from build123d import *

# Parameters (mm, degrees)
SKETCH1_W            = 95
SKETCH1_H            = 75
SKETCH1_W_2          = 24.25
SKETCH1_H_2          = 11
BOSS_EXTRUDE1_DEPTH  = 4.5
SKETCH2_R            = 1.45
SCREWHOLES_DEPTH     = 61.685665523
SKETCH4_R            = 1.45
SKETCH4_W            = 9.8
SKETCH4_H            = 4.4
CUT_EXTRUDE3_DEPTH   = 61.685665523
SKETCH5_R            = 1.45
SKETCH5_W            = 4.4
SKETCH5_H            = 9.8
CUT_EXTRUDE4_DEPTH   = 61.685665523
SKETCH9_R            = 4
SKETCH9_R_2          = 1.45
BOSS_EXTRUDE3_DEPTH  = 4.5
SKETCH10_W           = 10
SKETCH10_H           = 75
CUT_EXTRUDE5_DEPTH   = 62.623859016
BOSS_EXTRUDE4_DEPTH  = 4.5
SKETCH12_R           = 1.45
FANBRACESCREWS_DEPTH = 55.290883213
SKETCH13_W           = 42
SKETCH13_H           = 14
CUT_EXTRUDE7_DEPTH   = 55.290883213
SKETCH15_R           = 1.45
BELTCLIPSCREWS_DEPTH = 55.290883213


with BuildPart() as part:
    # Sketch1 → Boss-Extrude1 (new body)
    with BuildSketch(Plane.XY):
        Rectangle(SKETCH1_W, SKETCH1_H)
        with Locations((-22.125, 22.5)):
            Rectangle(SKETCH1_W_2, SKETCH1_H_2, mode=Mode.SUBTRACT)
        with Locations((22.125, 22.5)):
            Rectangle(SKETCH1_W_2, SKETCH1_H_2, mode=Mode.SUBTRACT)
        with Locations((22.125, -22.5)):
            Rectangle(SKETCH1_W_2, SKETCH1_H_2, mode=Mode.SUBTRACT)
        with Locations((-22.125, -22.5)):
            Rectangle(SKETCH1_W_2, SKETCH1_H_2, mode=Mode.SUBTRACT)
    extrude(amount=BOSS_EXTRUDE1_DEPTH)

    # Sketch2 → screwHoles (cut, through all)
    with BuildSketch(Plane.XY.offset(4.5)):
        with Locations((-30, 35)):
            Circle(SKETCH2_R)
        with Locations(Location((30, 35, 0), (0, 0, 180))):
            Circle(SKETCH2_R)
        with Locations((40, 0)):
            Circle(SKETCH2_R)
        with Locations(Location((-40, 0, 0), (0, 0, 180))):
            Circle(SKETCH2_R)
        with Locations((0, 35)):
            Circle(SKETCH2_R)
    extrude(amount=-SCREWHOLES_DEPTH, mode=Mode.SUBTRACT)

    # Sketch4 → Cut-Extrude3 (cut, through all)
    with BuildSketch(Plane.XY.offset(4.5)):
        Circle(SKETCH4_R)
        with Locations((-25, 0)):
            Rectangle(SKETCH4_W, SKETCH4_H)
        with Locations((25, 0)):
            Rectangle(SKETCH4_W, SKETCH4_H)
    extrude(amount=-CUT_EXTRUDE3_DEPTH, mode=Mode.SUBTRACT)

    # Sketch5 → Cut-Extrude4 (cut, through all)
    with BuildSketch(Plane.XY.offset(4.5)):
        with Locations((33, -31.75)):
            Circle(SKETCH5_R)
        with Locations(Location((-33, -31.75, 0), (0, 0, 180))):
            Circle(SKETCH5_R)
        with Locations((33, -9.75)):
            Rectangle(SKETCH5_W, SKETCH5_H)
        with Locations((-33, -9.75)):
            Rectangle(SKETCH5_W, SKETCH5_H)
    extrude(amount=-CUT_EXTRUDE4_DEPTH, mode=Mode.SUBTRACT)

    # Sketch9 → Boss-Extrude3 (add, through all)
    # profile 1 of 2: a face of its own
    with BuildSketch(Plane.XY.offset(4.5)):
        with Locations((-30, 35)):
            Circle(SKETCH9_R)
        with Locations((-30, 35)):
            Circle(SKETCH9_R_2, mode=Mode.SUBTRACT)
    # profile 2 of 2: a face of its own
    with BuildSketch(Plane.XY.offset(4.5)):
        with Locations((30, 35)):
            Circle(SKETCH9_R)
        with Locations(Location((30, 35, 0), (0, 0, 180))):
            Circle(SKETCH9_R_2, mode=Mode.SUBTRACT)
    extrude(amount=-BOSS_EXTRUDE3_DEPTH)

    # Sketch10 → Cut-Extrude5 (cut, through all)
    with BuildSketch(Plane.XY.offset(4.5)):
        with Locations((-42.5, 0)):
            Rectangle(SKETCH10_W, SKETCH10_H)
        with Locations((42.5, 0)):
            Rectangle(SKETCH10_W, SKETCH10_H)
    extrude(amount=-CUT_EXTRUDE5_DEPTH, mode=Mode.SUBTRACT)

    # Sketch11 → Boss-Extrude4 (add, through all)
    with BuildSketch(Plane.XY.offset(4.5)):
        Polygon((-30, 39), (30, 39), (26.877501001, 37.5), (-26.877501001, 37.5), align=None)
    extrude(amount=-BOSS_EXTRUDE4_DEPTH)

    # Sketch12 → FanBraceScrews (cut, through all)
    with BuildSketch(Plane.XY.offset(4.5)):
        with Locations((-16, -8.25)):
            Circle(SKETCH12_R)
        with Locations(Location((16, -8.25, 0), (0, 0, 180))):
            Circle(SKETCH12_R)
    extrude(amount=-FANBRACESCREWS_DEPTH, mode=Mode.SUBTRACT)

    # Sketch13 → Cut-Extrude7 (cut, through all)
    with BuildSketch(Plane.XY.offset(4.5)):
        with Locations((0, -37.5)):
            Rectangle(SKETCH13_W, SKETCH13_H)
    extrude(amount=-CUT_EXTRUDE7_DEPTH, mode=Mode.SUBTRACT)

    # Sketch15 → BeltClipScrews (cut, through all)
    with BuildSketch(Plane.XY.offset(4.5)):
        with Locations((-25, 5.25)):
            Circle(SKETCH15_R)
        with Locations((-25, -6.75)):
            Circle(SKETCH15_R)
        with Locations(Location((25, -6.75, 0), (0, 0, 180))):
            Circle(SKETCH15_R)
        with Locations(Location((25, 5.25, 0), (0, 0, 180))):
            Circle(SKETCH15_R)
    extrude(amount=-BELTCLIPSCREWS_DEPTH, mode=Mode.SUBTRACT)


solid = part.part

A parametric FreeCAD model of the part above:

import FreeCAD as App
import Part
import Sketcher

V = App.Vector
Q = App.Units.Quantity

doc = App.newDocument("Part")
body = doc.addObject("PartDesign::Body", "Body")

sketch1 = body.newObject("Sketcher::SketchObject", "Sketch")
sketch1.AttachmentSupport = (doc.getObject("XY_Plane"), [""])
sketch1.MapMode = "FlatFace"
sketch1.addGeometry([
    Part.LineSegment(V(-48, 38, 0), V(-48, -38, 0)),
    Part.LineSegment(V(-48, -38, 0), V(48, -38, 0)),
    Part.LineSegment(V(48, -38, 0), V(48, 38, 0)),
    Part.LineSegment(V(48, 38, 0), V(-48, 38, 0)),
    Part.LineSegment(V(-10, -28, 0), V(-34, -28, 0)),
    Part.LineSegment(V(-34, -28, 0), V(-34, -17, 0)),
    Part.LineSegment(V(-34, -17, 0), V(-10, -17, 0)),
    Part.LineSegment(V(-10, -17, 0), V(-10, -28, 0)),
    Part.LineSegment(V(34, -28, 0), V(10, -28, 0)),
    Part.LineSegment(V(10, -28, 0), V(10, -17, 0)),
    Part.LineSegment(V(10, -17, 0), V(34, -17, 0)),
    Part.LineSegment(V(34, -17, 0), V(34, -28, 0)),
    Part.LineSegment(V(-10, 17, 0), V(-34, 17, 0)),
    Part.LineSegment(V(-34, 17, 0), V(-34, 28, 0)),
    Part.LineSegment(V(-34, 28, 0), V(-10, 28, 0)),
    Part.LineSegment(V(-10, 28, 0), V(-10, 17, 0)),
    Part.LineSegment(V(34, 17, 0), V(10, 17, 0)),
    Part.LineSegment(V(10, 17, 0), V(10, 28, 0)),
    Part.LineSegment(V(10, 28, 0), V(34, 28, 0)),
    Part.LineSegment(V(34, 28, 0), V(34, 17, 0)),
], False)
sketch1.addConstraint([
    Sketcher.Constraint("Coincident", 0, 2, 1, 1),
    Sketcher.Constraint("Coincident", 1, 2, 2, 1),
    Sketcher.Constraint("Coincident", 2, 2, 3, 1),
    Sketcher.Constraint("Coincident", 3, 2, 0, 1),
    Sketcher.Constraint("Coincident", 4, 2, 5, 1),
    Sketcher.Constraint("Coincident", 5, 2, 6, 1),
    Sketcher.Constraint("Coincident", 6, 2, 7, 1),
    Sketcher.Constraint("Coincident", 7, 2, 4, 1),
    Sketcher.Constraint("Coincident", 8, 2, 9, 1),
    Sketcher.Constraint("Coincident", 9, 2, 10, 1),
    Sketcher.Constraint("Coincident", 10, 2, 11, 1),
    Sketcher.Constraint("Coincident", 11, 2, 8, 1),
    Sketcher.Constraint("Coincident", 12, 2, 13, 1),
    Sketcher.Constraint("Coincident", 13, 2, 14, 1),
    Sketcher.Constraint("Coincident", 14, 2, 15, 1),
    Sketcher.Constraint("Coincident", 15, 2, 12, 1),
    Sketcher.Constraint("Coincident", 16, 2, 17, 1),
    Sketcher.Constraint("Coincident", 17, 2, 18, 1),
    Sketcher.Constraint("Coincident", 18, 2, 19, 1),
    Sketcher.Constraint("Coincident", 19, 2, 16, 1),
    Sketcher.Constraint("Vertical", 0),
    Sketcher.Constraint("Horizontal", 1),
    Sketcher.Constraint("Vertical", 2),
    Sketcher.Constraint("Horizontal", 3),
    Sketcher.Constraint("Horizontal", 4),
    Sketcher.Constraint("Vertical", 5),
    Sketcher.Constraint("Horizontal", 6),
    Sketcher.Constraint("Vertical", 7),
    Sketcher.Constraint("Horizontal", 8),
    Sketcher.Constraint("Vertical", 9),
    Sketcher.Constraint("Horizontal", 10),
    Sketcher.Constraint("Vertical", 11),
    Sketcher.Constraint("Horizontal", 12),
    Sketcher.Constraint("Vertical", 13),
    Sketcher.Constraint("Horizontal", 14),
    Sketcher.Constraint("Vertical", 15),
    Sketcher.Constraint("Horizontal", 16),
    Sketcher.Constraint("Vertical", 17),
    Sketcher.Constraint("Horizontal", 18),
    Sketcher.Constraint("Vertical", 19),
    Sketcher.Constraint("Symmetric", 0, 2, 2, 2, -1, 1),
    Sketcher.Constraint("Symmetric", 10, 2, 12, 2, -1, 1),
    Sketcher.Constraint("Symmetric", 8, 2, 14, 2, -1, 1),
    Sketcher.Constraint("Symmetric", 6, 2, 16, 2, -1, 1),
    Sketcher.Constraint("Symmetric", 4, 2, 18, 2, -1, 1),
    Sketcher.Constraint("Symmetric", 7, 2, 8, 2, -2),
    Sketcher.Constraint("Symmetric", 5, 2, 10, 2, -2),
    Sketcher.Constraint("DistanceX", 1, 1, 1, 2, Q("95 mm")),
    Sketcher.Constraint("DistanceY", 0, 2, 0, 1, Q("75 mm")),
    Sketcher.Constraint("DistanceY", 5, 1, 5, 2, Q("11 mm")),
    Sketcher.Constraint("DistanceY", 4, 2, -1, 1, Q("28 mm")),
    Sketcher.Constraint("DistanceX", 6, 2, -1, 1, Q("10 mm")),
    Sketcher.Constraint("DistanceX", 4, 2, 4, 1, Q("24.25 mm")),
])
pad1 = body.newObject("PartDesign::Pad", "Pad")
pad1.Profile = sketch1
pad1.Length = 4.5

sketch2 = body.newObject("Sketcher::SketchObject", "Sketch001")
sketch2.AttachmentSupport = (doc.getObject("XY_Plane"), [""])
sketch2.MapMode = "FlatFace"
sketch2.AttachmentOffset = App.Placement(V(0, 0, 4.5), App.Rotation())
sketch2.addGeometry([
    Part.Circle(V(-30, 35, 0), V(0, 0, 1), 1.4),
    Part.Circle(V(30, 35, 0), V(0, 0, 1), 1.4),
    Part.Circle(V(40, 0, 0), V(0, 0, 1), 1.4),
    Part.Circle(V(-40, 0, 0), V(0, 0, 1), 1.4),
    Part.Circle(V(0, 35, 0), V(0, 0, 1), 1.4),
], False)
sketch2.addConstraint([
    Sketcher.Constraint("Equal", 0, 1),
    Sketcher.Constraint("Equal", 1, 2),
    Sketcher.Constraint("Equal", 2, 3),
    Sketcher.Constraint("Equal", 3, 4),
    Sketcher.Constraint("Symmetric", 2, 3, 3, 3, -1, 1),
    Sketcher.Constraint("Symmetric", 0, 3, 1, 3, -2),
    Sketcher.Constraint("PointOnObject", 2, 3, -1),
    Sketcher.Constraint("PointOnObject", 4, 3, -2),
    Sketcher.Constraint("Horizontal", 1, 3, 4, 3),
    Sketcher.Constraint("Diameter", 0, Q("2.9 mm")),
    Sketcher.Constraint("DistanceX", 0, 3, -1, 1, Q("30 mm")),
    Sketcher.Constraint("DistanceY", -1, 1, 0, 3, Q("35 mm")),
    Sketcher.Constraint("DistanceX", -1, 1, 2, 3, Q("40 mm")),
])
pocket1 = body.newObject("PartDesign::Pocket", "Pocket")
pocket1.Profile = sketch2
pocket1.Type = "ThroughAll"

sketch3 = body.newObject("Sketcher::SketchObject", "Sketch002")
sketch3.AttachmentSupport = (doc.getObject("XY_Plane"), [""])
sketch3.MapMode = "FlatFace"
sketch3.AttachmentOffset = App.Placement(V(0, 0, 4.5), App.Rotation())
sketch3.addGeometry([
    Part.Circle(V(0, 0, 0), V(0, 0, 1), 1.4),
    Part.LineSegment(V(-29.9, 2.2, 0), V(-29.9, -2.2, 0)),
    Part.LineSegment(V(-29.9, -2.2, 0), V(-20.1, -2.2, 0)),
    Part.LineSegment(V(-20.1, -2.2, 0), V(-20.1, 2.2, 0)),
    Part.LineSegment(V(-20.1, 2.2, 0), V(-29.9, 2.2, 0)),
    Part.LineSegment(V(20.1, 2.2, 0), V(20.1, -2.2, 0)),
    Part.LineSegment(V(20.1, -2.2, 0), V(29.9, -2.2, 0)),
    Part.LineSegment(V(29.9, -2.2, 0), V(29.9, 2.2, 0)),
    Part.LineSegment(V(29.9, 2.2, 0), V(20.1, 2.2, 0)),
], False)
sketch3.addConstraint([
    Sketcher.Constraint("Coincident", 1, 2, 2, 1),
    Sketcher.Constraint("Coincident", 2, 2, 3, 1),
    Sketcher.Constraint("Coincident", 3, 2, 4, 1),
    Sketcher.Constraint("Coincident", 4, 2, 1, 1),
    Sketcher.Constraint("Coincident", 5, 2, 6, 1),
    Sketcher.Constraint("Coincident", 6, 2, 7, 1),
    Sketcher.Constraint("Coincident", 7, 2, 8, 1),
    Sketcher.Constraint("Coincident", 8, 2, 5, 1),
    Sketcher.Constraint("Vertical", 1),
    Sketcher.Constraint("Horizontal", 2),
    Sketcher.Constraint("Vertical", 3),
    Sketcher.Constraint("Horizontal", 4),
    Sketcher.Constraint("Vertical", 5),
    Sketcher.Constraint("Horizontal", 6),
    Sketcher.Constraint("Vertical", 7),
    Sketcher.Constraint("Horizontal", 8),
    Sketcher.Constraint("Coincident", 0, 3, -1, 1),
    Sketcher.Constraint("Symmetric", 3, 2, 5, 2, -1, 1),
    Sketcher.Constraint("Symmetric", 1, 2, 7, 2, -1, 1),
    Sketcher.Constraint("Horizontal", 2, 2, 5, 2),
    Sketcher.Constraint("Diameter", 0, Q("2.9 mm")),
    Sketcher.Constraint("DistanceX", 2, 1, 2, 2, Q("9.8 mm")),
    Sketcher.Constraint("DistanceY", 1, 2, 1, 1, Q("4.4 mm")),
    Sketcher.Constraint("DistanceX", 1, 2, 5, 2, Q("50 mm")),
])
pocket2 = body.newObject("PartDesign::Pocket", "Pocket001")
pocket2.Profile = sketch3
pocket2.Type = "ThroughAll"

sketch4 = body.newObject("Sketcher::SketchObject", "Sketch003")
sketch4.AttachmentSupport = (doc.getObject("XY_Plane"), [""])
sketch4.MapMode = "FlatFace"
sketch4.AttachmentOffset = App.Placement(V(0, 0, 4.5), App.Rotation())
sketch4.addGeometry([
    Part.Circle(V(33, -31.8, 0), V(0, 0, 1), 1.4),
    Part.Circle(V(-33, -31.8, 0), V(0, 0, 1), 1.4),
    Part.LineSegment(V(30.8, -4.8, 0), V(30.8, -14.7, 0)),
    Part.LineSegment(V(30.8, -14.7, 0), V(35.2, -14.7, 0)),
    Part.LineSegment(V(35.2, -14.7, 0), V(35.2, -4.8, 0)),
    Part.LineSegment(V(35.2, -4.8, 0), V(30.8, -4.8, 0)),
    Part.LineSegment(V(-35.2, -4.8, 0), V(-35.2, -14.7, 0)),
    Part.LineSegment(V(-35.2, -14.7, 0), V(-30.8, -14.7, 0)),
    Part.LineSegment(V(-30.8, -14.7, 0), V(-30.8, -4.8, 0)),
    Part.LineSegment(V(-30.8, -4.8, 0), V(-35.2, -4.8, 0)),
], False)
sketch4.addConstraint([
    Sketcher.Constraint("Coincident", 2, 2, 3, 1),
    Sketcher.Constraint("Coincident", 3, 2, 4, 1),
    Sketcher.Constraint("Coincident", 4, 2, 5, 1),
    Sketcher.Constraint("Coincident", 5, 2, 2, 1),
    Sketcher.Constraint("Coincident", 6, 2, 7, 1),
    Sketcher.Constraint("Coincident", 7, 2, 8, 1),
    Sketcher.Constraint("Coincident", 8, 2, 9, 1),
    Sketcher.Constraint("Coincident", 9, 2, 6, 1),
    Sketcher.Constraint("Vertical", 2),
    Sketcher.Constraint("Horizontal", 3),
    Sketcher.Constraint("Vertical", 4),
    Sketcher.Constraint("Horizontal", 5),
    Sketcher.Constraint("Vertical", 6),
    Sketcher.Constraint("Horizontal", 7),
    Sketcher.Constraint("Vertical", 8),
    Sketcher.Constraint("Horizontal", 9),
    Sketcher.Constraint("Equal", 0, 1),
    Sketcher.Constraint("Symmetric", 0, 3, 1, 3, -2),
    Sketcher.Constraint("Symmetric", 3, 2, 6, 2, -2),
    Sketcher.Constraint("Symmetric", 5, 2, 8, 2, -2),
    Sketcher.Constraint("Diameter", 0, Q("2.9 mm")),
    Sketcher.Constraint("DistanceX", 3, 1, 3, 2, Q("4.4 mm")),
    Sketcher.Constraint("DistanceY", 2, 2, 2, 1, Q("9.8 mm")),
    Sketcher.Constraint("DistanceX", -1, 1, 0, 3, Q("33 mm")),
    Sketcher.Constraint("DistanceX", 6, 2, 2, 2, Q("66 mm")),
    Sketcher.Constraint("DistanceY", 0, 3, 2, 2, Q("17.1 mm")),
    Sketcher.Constraint("DistanceY", 0, 3, -1, 1, Q("31.75 mm")),
])
pocket3 = body.newObject("PartDesign::Pocket", "Pocket002")
pocket3.Profile = sketch4
pocket3.Type = "ThroughAll"

sketch5 = body.newObject("Sketcher::SketchObject", "Sketch004")
sketch5.AttachmentSupport = (doc.getObject("XY_Plane"), [""])
sketch5.MapMode = "FlatFace"
sketch5.AttachmentOffset = App.Placement(V(0, 0, 4.5), App.Rotation())
sketch5.addGeometry([
    Part.Circle(V(-30, 35, 0), V(0, 0, 1), 4),
    Part.Circle(V(-30, 35, 0), V(0, 0, 1), 1.4),
    Part.Circle(V(30, 35, 0), V(0, 0, 1), 4),
    Part.Circle(V(30, 35, 0), V(0, 0, 1), 1.4),
], False)
sketch5.addConstraint([
    Sketcher.Constraint("Coincident", 1, 3, 0, 3),
    Sketcher.Constraint("Coincident", 3, 3, 2, 3),
    Sketcher.Constraint("Equal", 0, 2),
    Sketcher.Constraint("Equal", 1, 3),
    Sketcher.Constraint("Symmetric", 0, 3, 2, 3, -2),
    Sketcher.Constraint("Diameter", 0, Q("8 mm")),
    Sketcher.Constraint("Diameter", 1, Q("2.9 mm")),
    Sketcher.Constraint("DistanceX", 0, 3, -1, 1, Q("30 mm")),
    Sketcher.Constraint("DistanceY", -1, 1, 0, 3, Q("35 mm")),
])
pad2 = body.newObject("PartDesign::Pad", "Pad001")
pad2.Profile = sketch5
pad2.Length = 4.5
pad2.Reversed = True

sketch6 = body.newObject("Sketcher::SketchObject", "Sketch005")
sketch6.AttachmentSupport = (doc.getObject("XY_Plane"), [""])
sketch6.MapMode = "FlatFace"
sketch6.AttachmentOffset = App.Placement(V(0, 0, 4.5), App.Rotation())
sketch6.addGeometry([
    Part.LineSegment(V(-48, 38, 0), V(-48, -38, 0)),
    Part.LineSegment(V(-48, -38, 0), V(-38, -38, 0)),
    Part.LineSegment(V(-38, -38, 0), V(-38, 38, 0)),
    Part.LineSegment(V(-38, 38, 0), V(-48, 38, 0)),
    Part.LineSegment(V(38, 38, 0), V(38, -38, 0)),
    Part.LineSegment(V(38, -38, 0), V(48, -38, 0)),
    Part.LineSegment(V(48, -38, 0), V(48, 38, 0)),
    Part.LineSegment(V(48, 38, 0), V(38, 38, 0)),
], False)
sketch6.addConstraint([
    Sketcher.Constraint("Coincident", 0, 2, 1, 1),
    Sketcher.Constraint("Coincident", 1, 2, 2, 1),
    Sketcher.Constraint("Coincident", 2, 2, 3, 1),
    Sketcher.Constraint("Coincident", 3, 2, 0, 1),
    Sketcher.Constraint("Coincident", 4, 2, 5, 1),
    Sketcher.Constraint("Coincident", 5, 2, 6, 1),
    Sketcher.Constraint("Coincident", 6, 2, 7, 1),
    Sketcher.Constraint("Coincident", 7, 2, 4, 1),
    Sketcher.Constraint("Vertical", 0),
    Sketcher.Constraint("Horizontal", 1),
    Sketcher.Constraint("Vertical", 2),
    Sketcher.Constraint("Horizontal", 3),
    Sketcher.Constraint("Vertical", 4),
    Sketcher.Constraint("Horizontal", 5),
    Sketcher.Constraint("Vertical", 6),
    Sketcher.Constraint("Horizontal", 7),
    Sketcher.Constraint("Symmetric", 2, 2, 4, 2, -1, 1),
    Sketcher.Constraint("Symmetric", 0, 2, 6, 2, -1, 1),
    Sketcher.Constraint("Horizontal", 1, 2, 4, 2),
    Sketcher.Constraint("DistanceX", 1, 1, 1, 2, Q("10 mm")),
    Sketcher.Constraint("DistanceY", 0, 2, 0, 1, Q("75 mm")),
    Sketcher.Constraint("DistanceX", 1, 2, 4, 2, Q("75 mm")),
])
pocket4 = body.newObject("PartDesign::Pocket", "Pocket003")
pocket4.Profile = sketch6
pocket4.Type = "ThroughAll"

sketch7 = body.newObject("Sketcher::SketchObject", "Sketch006")
sketch7.AttachmentSupport = (doc.getObject("XY_Plane"), [""])
sketch7.MapMode = "FlatFace"
sketch7.AttachmentOffset = App.Placement(V(0, 0, 4.5), App.Rotation())
sketch7.addGeometry([
    Part.LineSegment(V(30, 39, 0), V(-30, 39, 0)),
    Part.LineSegment(V(-30, 39, 0), V(-26.9, 37.5, 0)),
    Part.LineSegment(V(-26.9, 37.5, 0), V(26.9, 37.5, 0)),
    Part.LineSegment(V(26.9, 37.5, 0), V(30, 39, 0)),
], False)
sketch7.addConstraint([
    Sketcher.Constraint("Coincident", 0, 2, 1, 1),
    Sketcher.Constraint("Coincident", 1, 2, 2, 1),
    Sketcher.Constraint("Coincident", 2, 2, 3, 1),
    Sketcher.Constraint("Coincident", 3, 2, 0, 1),
    Sketcher.Constraint("Horizontal", 0),
    Sketcher.Constraint("Horizontal", 2),
    Sketcher.Constraint("Equal", 1, 3),
    Sketcher.Constraint("DistanceX", 0, 2, 0, 1, Q("60 mm")),
    Sketcher.Constraint("DistanceX", 0, 2, -1, 1, Q("30 mm")),
    Sketcher.Constraint("DistanceY", -1, 1, 0, 2, Q("39 mm")),
    Sketcher.Constraint("DistanceY", -1, 1, 1, 2, Q("37.5 mm")),
    Sketcher.Constraint("Distance", 1, Q("3.464102 mm")),
])
pad3 = body.newObject("PartDesign::Pad", "Pad002")
pad3.Profile = sketch7
pad3.Length = 4.5
pad3.Reversed = True

sketch8 = body.newObject("Sketcher::SketchObject", "Sketch007")
sketch8.AttachmentSupport = (doc.getObject("XY_Plane"), [""])
sketch8.MapMode = "FlatFace"
sketch8.AttachmentOffset = App.Placement(V(0, 0, 4.5), App.Rotation())
sketch8.addGeometry([
    Part.Circle(V(-16, -8.2, 0), V(0, 0, 1), 1.4),
    Part.Circle(V(16, -8.2, 0), V(0, 0, 1), 1.4),
], False)
sketch8.addConstraint([
    Sketcher.Constraint("Equal", 0, 1),
    Sketcher.Constraint("Symmetric", 0, 3, 1, 3, -2),
    Sketcher.Constraint("Diameter", 0, Q("2.9 mm")),
    Sketcher.Constraint("DistanceX", 0, 3, -1, 1, Q("16 mm")),
    Sketcher.Constraint("DistanceY", 0, 3, -1, 1, Q("8.25 mm")),
])
pocket5 = body.newObject("PartDesign::Pocket", "Pocket004")
pocket5.Profile = sketch8
pocket5.Type = "ThroughAll"

sketch9 = body.newObject("Sketcher::SketchObject", "Sketch008")
sketch9.AttachmentSupport = (doc.getObject("XY_Plane"), [""])
sketch9.MapMode = "FlatFace"
sketch9.AttachmentOffset = App.Placement(V(0, 0, 4.5), App.Rotation())
sketch9.addGeometry([
    Part.LineSegment(V(-21, -30, 0), V(-21, -44, 0)),
    Part.LineSegment(V(-21, -44, 0), V(21, -44, 0)),
    Part.LineSegment(V(21, -44, 0), V(21, -30, 0)),
    Part.LineSegment(V(21, -30, 0), V(-21, -30, 0)),
], False)
sketch9.addConstraint([
    Sketcher.Constraint("Coincident", 0, 2, 1, 1),
    Sketcher.Constraint("Coincident", 1, 2, 2, 1),
    Sketcher.Constraint("Coincident", 2, 2, 3, 1),
    Sketcher.Constraint("Coincident", 3, 2, 0, 1),
    Sketcher.Constraint("Vertical", 0),
    Sketcher.Constraint("Horizontal", 1),
    Sketcher.Constraint("Vertical", 2),
    Sketcher.Constraint("Horizontal", 3),
    Sketcher.Constraint("DistanceX", 1, 1, 1, 2, Q("42 mm")),
    Sketcher.Constraint("DistanceY", 0, 2, 0, 1, Q("14 mm")),
    Sketcher.Constraint("DistanceX", 0, 2, -1, 1, Q("21 mm")),
    Sketcher.Constraint("DistanceY", 0, 2, -1, 1, Q("44.5 mm")),
])
pocket6 = body.newObject("PartDesign::Pocket", "Pocket005")
pocket6.Profile = sketch9
pocket6.Type = "ThroughAll"

sketch10 = body.newObject("Sketcher::SketchObject", "Sketch009")
sketch10.AttachmentSupport = (doc.getObject("XY_Plane"), [""])
sketch10.MapMode = "FlatFace"
sketch10.AttachmentOffset = App.Placement(V(0, 0, 4.5), App.Rotation())
sketch10.addGeometry([
    Part.Circle(V(-25, 5.2, 0), V(0, 0, 1), 1.4),
    Part.Circle(V(-25, -6.8, 0), V(0, 0, 1), 1.4),
    Part.Circle(V(25, -6.8, 0), V(0, 0, 1), 1.4),
    Part.Circle(V(25, 5.2, 0), V(0, 0, 1), 1.4),
], False)
sketch10.addConstraint([
    Sketcher.Constraint("Equal", 0, 1),
    Sketcher.Constraint("Equal", 1, 2),
    Sketcher.Constraint("Equal", 2, 3),
    Sketcher.Constraint("Symmetric", 1, 3, 2, 3, -2),
    Sketcher.Constraint("Symmetric", 0, 3, 3, 3, -2),
    Sketcher.Constraint("Vertical", 0, 3, 1, 3),
    Sketcher.Constraint("Diameter", 0, Q("2.9 mm")),
    Sketcher.Constraint("DistanceX", 0, 3, -1, 1, Q("25 mm")),
    Sketcher.Constraint("DistanceY", 1, 3, 0, 3, Q("12 mm")),
    Sketcher.Constraint("DistanceY", -1, 1, 0, 3, Q("5.25 mm")),
])
pocket7 = body.newObject("PartDesign::Pocket", "Pocket006")
pocket7.Profile = sketch10
pocket7.Type = "ThroughAll"

doc.recompute()
